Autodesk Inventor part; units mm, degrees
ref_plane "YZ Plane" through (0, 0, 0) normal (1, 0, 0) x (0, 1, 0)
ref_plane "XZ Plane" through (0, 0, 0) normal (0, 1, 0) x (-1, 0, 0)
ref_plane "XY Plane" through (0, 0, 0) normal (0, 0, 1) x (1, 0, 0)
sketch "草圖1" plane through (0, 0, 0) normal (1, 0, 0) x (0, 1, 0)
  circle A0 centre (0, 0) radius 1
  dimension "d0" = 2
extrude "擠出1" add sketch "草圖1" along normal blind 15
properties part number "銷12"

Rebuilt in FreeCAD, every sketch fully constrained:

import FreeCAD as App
import Part
import Sketcher
from FreeCAD import Vector

doc = App.newDocument("Part")
body = doc.addObject("PartDesign::Body", "Body")

sketch1 = body.newObject("Sketcher::SketchObject", "Sketch")
sketch1.AttachmentSupport = (doc.getObject("YZ_Plane"), [""])
sketch1.MapMode = "FlatFace"
sketch1.addGeometry(Part.Circle(Vector(0, 0, 0), Vector(0, 0, 1), 1), False)
sketch1.addConstraint(Sketcher.Constraint("Coincident", 0, 3, -1, 1))
sketch1.addConstraint(Sketcher.Constraint("Diameter", 0, 2.0))
pad1 = body.newObject("PartDesign::Pad", "Pad")
pad1.Profile = sketch1
pad1.Length = 15

doc.recompute()
